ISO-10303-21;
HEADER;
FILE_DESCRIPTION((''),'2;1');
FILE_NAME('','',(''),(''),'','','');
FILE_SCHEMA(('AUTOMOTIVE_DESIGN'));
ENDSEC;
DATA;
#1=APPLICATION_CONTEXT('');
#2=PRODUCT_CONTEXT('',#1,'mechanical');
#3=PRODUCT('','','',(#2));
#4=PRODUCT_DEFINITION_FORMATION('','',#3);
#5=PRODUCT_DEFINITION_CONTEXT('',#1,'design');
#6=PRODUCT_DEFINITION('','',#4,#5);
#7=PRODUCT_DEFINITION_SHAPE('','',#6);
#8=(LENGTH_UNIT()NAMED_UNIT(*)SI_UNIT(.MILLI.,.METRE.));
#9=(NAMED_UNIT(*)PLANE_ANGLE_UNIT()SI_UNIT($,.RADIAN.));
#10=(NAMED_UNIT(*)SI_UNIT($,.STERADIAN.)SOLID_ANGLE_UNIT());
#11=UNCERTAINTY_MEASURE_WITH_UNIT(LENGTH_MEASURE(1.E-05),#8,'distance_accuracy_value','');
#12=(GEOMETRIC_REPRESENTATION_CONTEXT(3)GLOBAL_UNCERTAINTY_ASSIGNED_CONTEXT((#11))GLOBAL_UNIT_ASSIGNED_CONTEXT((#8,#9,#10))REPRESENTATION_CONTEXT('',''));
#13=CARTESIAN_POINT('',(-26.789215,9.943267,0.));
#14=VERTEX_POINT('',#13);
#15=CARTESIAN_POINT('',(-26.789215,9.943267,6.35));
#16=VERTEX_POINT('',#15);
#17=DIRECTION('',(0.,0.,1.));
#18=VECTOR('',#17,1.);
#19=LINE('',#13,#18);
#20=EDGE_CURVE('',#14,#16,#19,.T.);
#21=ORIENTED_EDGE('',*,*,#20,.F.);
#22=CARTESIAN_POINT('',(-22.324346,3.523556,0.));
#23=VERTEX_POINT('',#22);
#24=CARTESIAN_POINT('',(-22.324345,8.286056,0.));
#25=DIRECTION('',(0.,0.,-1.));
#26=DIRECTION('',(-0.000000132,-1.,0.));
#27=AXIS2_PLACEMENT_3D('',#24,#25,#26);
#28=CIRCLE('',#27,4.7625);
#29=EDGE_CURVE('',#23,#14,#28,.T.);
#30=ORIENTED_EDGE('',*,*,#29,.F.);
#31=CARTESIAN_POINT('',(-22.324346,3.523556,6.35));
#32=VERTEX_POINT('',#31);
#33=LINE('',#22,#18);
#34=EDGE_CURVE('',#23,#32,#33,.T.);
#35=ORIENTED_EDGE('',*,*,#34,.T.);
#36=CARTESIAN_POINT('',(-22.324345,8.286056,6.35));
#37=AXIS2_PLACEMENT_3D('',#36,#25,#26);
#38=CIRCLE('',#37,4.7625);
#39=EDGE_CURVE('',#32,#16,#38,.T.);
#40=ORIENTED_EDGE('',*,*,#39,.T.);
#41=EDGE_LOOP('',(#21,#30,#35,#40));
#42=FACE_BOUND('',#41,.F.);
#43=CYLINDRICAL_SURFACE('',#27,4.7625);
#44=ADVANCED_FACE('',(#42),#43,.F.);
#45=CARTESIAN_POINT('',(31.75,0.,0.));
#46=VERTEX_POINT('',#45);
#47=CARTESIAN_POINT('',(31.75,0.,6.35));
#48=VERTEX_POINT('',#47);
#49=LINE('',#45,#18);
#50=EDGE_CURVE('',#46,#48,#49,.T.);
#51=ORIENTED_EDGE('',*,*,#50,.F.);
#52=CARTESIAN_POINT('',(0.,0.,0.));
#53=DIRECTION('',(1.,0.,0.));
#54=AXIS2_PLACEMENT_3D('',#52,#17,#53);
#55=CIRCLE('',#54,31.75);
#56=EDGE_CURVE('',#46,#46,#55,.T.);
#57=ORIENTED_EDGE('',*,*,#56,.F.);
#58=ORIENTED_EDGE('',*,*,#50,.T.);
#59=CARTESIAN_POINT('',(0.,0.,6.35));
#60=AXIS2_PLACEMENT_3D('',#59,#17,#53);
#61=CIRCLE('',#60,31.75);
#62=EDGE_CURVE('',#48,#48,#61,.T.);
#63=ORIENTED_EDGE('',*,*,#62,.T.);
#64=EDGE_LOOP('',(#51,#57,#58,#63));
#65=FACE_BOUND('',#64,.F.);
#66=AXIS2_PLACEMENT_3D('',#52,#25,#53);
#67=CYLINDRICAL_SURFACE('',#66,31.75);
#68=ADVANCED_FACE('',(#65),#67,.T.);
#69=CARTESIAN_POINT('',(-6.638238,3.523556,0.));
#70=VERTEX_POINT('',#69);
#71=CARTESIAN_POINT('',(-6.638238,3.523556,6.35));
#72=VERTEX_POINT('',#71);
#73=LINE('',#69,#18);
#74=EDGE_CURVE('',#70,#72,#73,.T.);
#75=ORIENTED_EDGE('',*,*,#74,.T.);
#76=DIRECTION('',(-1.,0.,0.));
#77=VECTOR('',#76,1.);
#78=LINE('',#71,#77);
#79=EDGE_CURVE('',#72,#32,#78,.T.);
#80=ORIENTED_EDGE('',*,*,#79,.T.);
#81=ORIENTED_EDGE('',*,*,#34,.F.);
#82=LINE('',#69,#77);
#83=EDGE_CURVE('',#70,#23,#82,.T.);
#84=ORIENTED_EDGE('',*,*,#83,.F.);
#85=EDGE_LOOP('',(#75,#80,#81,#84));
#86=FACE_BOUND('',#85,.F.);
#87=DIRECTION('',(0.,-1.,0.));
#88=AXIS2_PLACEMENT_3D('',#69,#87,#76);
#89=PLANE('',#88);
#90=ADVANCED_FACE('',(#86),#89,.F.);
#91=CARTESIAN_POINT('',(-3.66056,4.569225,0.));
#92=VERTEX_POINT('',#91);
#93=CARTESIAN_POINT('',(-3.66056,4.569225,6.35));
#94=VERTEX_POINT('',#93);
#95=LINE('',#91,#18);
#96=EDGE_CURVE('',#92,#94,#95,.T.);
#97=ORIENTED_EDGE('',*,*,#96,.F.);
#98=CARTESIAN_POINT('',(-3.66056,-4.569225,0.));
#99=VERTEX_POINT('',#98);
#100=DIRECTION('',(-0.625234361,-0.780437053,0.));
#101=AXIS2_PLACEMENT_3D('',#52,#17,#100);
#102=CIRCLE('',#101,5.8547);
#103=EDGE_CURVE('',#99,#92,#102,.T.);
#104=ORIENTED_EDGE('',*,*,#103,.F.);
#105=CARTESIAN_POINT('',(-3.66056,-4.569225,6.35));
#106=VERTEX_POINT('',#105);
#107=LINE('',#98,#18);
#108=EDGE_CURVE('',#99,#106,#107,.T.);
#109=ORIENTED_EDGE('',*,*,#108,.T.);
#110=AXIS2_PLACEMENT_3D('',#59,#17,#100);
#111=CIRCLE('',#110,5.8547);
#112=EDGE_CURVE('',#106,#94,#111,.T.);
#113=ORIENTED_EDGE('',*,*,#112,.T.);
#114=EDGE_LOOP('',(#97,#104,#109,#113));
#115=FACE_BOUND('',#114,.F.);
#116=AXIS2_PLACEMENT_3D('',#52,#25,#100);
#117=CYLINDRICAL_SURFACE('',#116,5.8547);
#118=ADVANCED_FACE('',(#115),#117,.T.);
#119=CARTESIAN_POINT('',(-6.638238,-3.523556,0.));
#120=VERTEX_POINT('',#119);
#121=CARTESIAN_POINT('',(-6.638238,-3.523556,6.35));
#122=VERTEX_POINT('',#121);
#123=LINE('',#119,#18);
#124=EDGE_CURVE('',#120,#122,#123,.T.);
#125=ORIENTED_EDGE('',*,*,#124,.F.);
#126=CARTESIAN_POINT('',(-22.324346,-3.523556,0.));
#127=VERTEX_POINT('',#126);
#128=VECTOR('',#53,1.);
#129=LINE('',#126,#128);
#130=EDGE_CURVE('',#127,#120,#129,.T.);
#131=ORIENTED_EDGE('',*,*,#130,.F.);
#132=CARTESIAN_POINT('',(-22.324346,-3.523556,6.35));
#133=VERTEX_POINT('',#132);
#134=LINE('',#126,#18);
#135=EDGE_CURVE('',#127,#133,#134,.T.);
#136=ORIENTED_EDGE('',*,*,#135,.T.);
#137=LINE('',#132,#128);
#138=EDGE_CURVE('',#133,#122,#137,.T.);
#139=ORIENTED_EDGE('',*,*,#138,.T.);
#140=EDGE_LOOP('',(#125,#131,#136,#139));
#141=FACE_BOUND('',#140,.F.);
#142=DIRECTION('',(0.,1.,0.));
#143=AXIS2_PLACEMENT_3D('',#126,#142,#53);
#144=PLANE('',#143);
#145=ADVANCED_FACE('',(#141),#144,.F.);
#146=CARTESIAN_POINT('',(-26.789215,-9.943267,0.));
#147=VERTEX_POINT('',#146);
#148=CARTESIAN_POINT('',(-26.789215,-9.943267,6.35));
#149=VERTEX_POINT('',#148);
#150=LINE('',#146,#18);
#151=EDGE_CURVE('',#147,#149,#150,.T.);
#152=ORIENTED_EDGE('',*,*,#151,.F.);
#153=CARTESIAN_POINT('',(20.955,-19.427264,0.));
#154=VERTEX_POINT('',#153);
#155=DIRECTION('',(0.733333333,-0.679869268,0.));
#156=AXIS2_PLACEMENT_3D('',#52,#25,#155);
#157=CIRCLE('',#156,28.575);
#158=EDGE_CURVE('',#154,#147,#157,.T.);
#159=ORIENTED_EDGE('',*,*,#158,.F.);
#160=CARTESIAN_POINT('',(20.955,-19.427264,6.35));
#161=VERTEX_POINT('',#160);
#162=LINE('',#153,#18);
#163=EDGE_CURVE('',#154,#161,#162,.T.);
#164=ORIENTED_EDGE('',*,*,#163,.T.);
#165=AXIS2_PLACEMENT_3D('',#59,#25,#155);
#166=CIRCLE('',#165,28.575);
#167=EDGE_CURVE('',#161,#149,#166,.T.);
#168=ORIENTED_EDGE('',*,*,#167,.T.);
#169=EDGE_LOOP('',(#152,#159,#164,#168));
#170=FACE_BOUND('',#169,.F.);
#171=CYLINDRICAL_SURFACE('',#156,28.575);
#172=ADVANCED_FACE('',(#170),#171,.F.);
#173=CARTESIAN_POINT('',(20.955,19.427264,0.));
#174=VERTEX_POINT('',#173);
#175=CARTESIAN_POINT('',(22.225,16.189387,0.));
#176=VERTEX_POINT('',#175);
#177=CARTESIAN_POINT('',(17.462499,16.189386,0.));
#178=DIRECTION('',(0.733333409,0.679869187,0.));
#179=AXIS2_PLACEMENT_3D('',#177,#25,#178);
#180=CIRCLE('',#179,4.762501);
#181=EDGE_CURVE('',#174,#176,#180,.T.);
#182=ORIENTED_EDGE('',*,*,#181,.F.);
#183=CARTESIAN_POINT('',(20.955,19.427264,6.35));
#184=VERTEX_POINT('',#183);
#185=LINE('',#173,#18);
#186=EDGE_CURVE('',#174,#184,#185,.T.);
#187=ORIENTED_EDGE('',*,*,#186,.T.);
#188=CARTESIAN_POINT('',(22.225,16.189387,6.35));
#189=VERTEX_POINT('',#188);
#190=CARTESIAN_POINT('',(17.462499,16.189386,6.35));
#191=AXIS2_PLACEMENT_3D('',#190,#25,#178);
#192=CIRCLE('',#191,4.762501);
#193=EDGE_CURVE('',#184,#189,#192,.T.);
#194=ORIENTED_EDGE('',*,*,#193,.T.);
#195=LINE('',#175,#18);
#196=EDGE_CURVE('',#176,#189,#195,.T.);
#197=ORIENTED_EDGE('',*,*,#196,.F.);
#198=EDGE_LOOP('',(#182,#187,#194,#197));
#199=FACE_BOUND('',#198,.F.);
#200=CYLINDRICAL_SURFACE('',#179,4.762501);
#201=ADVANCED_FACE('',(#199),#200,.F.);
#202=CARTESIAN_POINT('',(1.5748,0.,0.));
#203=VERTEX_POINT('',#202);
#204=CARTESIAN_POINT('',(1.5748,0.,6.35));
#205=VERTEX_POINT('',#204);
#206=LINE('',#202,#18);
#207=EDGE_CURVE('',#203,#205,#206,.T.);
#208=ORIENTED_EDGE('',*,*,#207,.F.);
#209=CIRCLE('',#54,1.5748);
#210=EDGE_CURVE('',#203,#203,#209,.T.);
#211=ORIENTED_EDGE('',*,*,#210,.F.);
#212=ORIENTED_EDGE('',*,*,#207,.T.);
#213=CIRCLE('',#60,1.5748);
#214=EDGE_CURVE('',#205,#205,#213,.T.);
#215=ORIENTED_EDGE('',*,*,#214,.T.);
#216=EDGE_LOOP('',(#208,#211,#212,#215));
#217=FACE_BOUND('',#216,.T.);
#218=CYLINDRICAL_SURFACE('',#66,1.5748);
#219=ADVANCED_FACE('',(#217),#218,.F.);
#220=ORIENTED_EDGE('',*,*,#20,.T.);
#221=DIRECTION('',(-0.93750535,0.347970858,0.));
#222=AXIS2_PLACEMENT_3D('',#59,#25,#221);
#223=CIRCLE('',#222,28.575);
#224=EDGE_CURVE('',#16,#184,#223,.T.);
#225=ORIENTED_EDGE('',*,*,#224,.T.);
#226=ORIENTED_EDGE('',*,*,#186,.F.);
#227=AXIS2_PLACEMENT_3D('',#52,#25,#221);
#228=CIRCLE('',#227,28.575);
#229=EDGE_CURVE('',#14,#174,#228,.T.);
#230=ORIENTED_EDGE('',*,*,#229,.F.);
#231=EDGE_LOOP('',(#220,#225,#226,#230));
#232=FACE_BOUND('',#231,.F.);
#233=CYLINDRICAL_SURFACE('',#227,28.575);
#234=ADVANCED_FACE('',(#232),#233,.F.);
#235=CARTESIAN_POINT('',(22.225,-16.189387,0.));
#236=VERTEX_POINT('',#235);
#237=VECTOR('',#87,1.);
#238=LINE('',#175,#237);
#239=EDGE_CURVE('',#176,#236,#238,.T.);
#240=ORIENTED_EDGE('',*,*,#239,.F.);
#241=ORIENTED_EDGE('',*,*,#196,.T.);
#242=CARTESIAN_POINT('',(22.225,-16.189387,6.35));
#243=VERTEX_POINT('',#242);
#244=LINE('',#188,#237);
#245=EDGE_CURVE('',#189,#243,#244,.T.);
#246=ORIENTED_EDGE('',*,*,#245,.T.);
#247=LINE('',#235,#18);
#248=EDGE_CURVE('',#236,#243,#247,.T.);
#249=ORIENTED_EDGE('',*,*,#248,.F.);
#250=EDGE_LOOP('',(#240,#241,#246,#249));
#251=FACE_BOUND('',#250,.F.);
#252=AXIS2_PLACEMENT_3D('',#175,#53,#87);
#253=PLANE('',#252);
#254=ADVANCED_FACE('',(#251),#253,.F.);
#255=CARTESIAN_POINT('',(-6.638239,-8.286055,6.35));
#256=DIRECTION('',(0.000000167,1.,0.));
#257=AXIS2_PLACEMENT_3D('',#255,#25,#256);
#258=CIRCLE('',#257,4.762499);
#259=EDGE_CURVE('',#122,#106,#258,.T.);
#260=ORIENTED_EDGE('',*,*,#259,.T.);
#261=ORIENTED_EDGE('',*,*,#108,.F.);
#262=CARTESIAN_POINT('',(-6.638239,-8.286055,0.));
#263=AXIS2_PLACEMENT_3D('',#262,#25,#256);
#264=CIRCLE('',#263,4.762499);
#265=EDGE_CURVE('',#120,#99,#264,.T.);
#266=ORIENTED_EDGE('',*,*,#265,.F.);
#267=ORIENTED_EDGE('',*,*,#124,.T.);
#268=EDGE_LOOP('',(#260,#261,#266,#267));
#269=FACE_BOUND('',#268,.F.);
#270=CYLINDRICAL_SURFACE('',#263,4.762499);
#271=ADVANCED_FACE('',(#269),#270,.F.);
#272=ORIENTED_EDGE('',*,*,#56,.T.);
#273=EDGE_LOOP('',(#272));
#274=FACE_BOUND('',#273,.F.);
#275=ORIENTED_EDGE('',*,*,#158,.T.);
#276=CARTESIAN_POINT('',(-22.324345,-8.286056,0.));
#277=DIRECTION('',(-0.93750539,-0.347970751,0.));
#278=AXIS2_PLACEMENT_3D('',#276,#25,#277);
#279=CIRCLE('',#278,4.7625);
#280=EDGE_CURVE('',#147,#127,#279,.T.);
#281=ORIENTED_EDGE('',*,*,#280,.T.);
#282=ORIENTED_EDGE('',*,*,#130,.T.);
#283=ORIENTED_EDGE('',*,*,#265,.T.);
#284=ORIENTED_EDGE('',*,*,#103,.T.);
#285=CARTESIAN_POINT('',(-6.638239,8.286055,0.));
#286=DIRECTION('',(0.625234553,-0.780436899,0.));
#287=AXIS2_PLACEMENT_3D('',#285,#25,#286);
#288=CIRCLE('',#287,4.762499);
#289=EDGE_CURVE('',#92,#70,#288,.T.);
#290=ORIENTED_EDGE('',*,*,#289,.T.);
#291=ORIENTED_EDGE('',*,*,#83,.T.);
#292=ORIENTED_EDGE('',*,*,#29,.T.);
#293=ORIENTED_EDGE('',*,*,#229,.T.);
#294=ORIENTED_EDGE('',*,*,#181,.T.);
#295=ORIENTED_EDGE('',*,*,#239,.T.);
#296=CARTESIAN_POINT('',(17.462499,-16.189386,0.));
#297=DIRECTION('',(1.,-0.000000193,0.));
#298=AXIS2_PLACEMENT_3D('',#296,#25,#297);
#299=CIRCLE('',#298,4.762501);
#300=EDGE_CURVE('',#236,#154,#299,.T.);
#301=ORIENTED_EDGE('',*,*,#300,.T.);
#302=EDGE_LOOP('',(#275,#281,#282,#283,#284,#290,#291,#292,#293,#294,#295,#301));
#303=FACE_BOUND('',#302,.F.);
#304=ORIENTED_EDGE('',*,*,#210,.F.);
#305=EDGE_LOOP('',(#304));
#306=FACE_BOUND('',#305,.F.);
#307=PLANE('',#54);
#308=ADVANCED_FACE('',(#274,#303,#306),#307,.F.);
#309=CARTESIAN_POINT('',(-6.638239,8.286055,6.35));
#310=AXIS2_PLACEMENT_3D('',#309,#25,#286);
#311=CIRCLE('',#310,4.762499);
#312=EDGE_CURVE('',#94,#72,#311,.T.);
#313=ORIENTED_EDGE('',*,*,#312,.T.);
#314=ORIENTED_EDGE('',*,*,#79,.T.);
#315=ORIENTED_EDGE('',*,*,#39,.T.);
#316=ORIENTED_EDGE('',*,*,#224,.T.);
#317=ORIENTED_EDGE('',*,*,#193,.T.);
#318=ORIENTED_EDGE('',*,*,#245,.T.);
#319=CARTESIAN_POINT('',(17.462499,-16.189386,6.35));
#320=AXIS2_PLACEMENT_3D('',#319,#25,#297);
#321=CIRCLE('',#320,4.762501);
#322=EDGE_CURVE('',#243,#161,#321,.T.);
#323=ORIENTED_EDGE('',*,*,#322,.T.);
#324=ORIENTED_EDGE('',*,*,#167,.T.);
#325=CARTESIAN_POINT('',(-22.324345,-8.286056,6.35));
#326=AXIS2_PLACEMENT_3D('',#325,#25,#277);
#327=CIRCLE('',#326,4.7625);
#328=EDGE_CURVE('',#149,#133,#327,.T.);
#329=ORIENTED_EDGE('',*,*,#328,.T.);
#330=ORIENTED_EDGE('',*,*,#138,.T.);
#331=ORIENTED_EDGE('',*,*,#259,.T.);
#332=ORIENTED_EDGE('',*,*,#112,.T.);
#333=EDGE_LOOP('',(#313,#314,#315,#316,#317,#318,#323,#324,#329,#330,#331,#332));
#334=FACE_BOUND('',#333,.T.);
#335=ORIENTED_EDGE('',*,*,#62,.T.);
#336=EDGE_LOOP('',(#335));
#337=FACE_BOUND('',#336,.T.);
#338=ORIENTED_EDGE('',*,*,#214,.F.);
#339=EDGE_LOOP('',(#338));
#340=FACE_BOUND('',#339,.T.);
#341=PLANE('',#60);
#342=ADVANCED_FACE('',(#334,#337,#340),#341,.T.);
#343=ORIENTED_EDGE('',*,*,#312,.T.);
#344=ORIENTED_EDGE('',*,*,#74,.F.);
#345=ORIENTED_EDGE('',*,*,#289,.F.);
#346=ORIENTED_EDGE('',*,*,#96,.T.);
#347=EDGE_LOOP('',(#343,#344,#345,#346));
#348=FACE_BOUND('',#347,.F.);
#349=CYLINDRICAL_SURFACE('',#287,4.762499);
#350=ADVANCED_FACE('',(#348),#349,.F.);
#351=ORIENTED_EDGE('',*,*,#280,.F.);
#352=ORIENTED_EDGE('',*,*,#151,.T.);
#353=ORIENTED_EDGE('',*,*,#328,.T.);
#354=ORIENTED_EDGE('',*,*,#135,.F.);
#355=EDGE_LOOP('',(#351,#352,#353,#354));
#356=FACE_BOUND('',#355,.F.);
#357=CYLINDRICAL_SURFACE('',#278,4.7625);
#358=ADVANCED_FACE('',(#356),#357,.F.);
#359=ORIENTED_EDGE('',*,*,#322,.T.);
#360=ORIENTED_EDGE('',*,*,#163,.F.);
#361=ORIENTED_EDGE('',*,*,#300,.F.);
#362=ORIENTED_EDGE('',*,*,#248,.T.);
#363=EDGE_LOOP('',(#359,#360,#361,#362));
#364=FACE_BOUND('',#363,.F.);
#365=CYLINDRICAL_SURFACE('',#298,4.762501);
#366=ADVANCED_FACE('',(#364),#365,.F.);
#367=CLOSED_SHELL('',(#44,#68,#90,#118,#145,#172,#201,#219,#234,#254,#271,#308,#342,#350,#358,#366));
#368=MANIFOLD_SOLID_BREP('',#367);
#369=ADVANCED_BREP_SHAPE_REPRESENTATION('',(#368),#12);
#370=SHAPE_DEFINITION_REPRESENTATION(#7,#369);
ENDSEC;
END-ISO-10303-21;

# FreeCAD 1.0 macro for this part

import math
import FreeCAD as App
import Part
import Sketcher
from FreeCAD import Vector
Q = App.Units.Quantity

doc = App.newDocument("Part")
body = doc.addObject("PartDesign::Body", "Body")

# Sketch on XY plane
sketch1 = doc.addObject("Sketcher::SketchObject", "Sketch")
body.addObject(sketch1)
sketch1.AttachmentSupport = (doc.XY_Plane, [""])
sketch1.MapMode = "FlatFace"
sketch1.addGeometry(Part.Circle(Vector(0, 0, 0), Vector(0, 0, 1), 31.8), False)
sketch1.addGeometry(Part.ArcOfCircle(Part.Circle(Vector(17.5, -16.2, 0), Vector(0, 0, 1), 4.8), math.radians(-43), math.radians(0)), False)
sketch1.addGeometry(Part.ArcOfCircle(Part.Circle(Vector(0, 0, 0), Vector(0, 0, 1), 28.6), math.radians(-160), math.radians(-43)), False)
sketch1.addGeometry(Part.ArcOfCircle(Part.Circle(Vector(-22.3, -8.3, 0), Vector(0, 0, 1), 4.8), math.radians(90), math.radians(200)), False)
sketch1.addGeometry(Part.LineSegment(Vector(-22.3, -3.5, 0), Vector(-6.6, -3.5, 0)), False)
sketch1.addGeometry(Part.ArcOfCircle(Part.Circle(Vector(-6.6, -8.3, 0), Vector(0, 0, 1), 4.8), math.radians(51), math.radians(90)), False)
sketch1.addGeometry(Part.ArcOfCircle(Part.Circle(Vector(0, 0, 0), Vector(0, 0, 1), 5.9), math.radians(-129), math.radians(129)), False)
sketch1.addGeometry(Part.ArcOfCircle(Part.Circle(Vector(-6.6, 8.3, 0), Vector(0, 0, 1), 4.8), math.radians(-90), math.radians(-51)), False)
sketch1.addGeometry(Part.LineSegment(Vector(-6.6, 3.5, 0), Vector(-22.3, 3.5, 0)), False)
sketch1.addGeometry(Part.ArcOfCircle(Part.Circle(Vector(-22.3, 8.3, 0), Vector(0, 0, 1), 4.8), math.radians(160), math.radians(270)), False)
sketch1.addGeometry(Part.ArcOfCircle(Part.Circle(Vector(0, 0, 0), Vector(0, 0, 1), 28.6), math.radians(43), math.radians(160)), False)
sketch1.addGeometry(Part.ArcOfCircle(Part.Circle(Vector(17.5, 16.2, 0), Vector(0, 0, 1), 4.8), math.radians(0), math.radians(43)), False)
sketch1.addGeometry(Part.LineSegment(Vector(22.2, 16.2, 0), Vector(22.2, -16.2, 0)), False)
sketch1.addGeometry(Part.Circle(Vector(0, 0, 0), Vector(0, 0, 1), 1.6), False)
sketch1.addConstraint(Sketcher.Constraint("Tangent", 1, 1, 2, 2))
sketch1.addConstraint(Sketcher.Constraint("Tangent", 2, 1, 3, 2))
sketch1.addConstraint(Sketcher.Constraint("Tangent", 3, 1, 4, 1))
sketch1.addConstraint(Sketcher.Constraint("Tangent", 4, 2, 5, 2))
sketch1.addConstraint(Sketcher.Constraint("Tangent", 5, 1, 6, 1))
sketch1.addConstraint(Sketcher.Constraint("Tangent", 6, 2, 7, 2))
sketch1.addConstraint(Sketcher.Constraint("Tangent", 7, 1, 8, 1))
sketch1.addConstraint(Sketcher.Constraint("Tangent", 8, 2, 9, 2))
sketch1.addConstraint(Sketcher.Constraint("Tangent", 9, 1, 10, 2))
sketch1.addConstraint(Sketcher.Constraint("Tangent", 10, 1, 11, 2))
sketch1.addConstraint(Sketcher.Constraint("Tangent", 11, 1, 12, 1))
sketch1.addConstraint(Sketcher.Constraint("Tangent", 12, 2, 1, 2))
sketch1.addConstraint(Sketcher.Constraint("Horizontal", 4))
sketch1.addConstraint(Sketcher.Constraint("Horizontal", 8))
sketch1.addConstraint(Sketcher.Constraint("Vertical", 12))
sketch1.addConstraint(Sketcher.Constraint("Coincident", 0, 3, -1, 1))
sketch1.addConstraint(Sketcher.Constraint("Coincident", 2, 3, -1, 1))
sketch1.addConstraint(Sketcher.Constraint("Coincident", 6, 3, -1, 1))
sketch1.addConstraint(Sketcher.Constraint("Coincident", 10, 3, -1, 1))
sketch1.addConstraint(Sketcher.Constraint("Coincident", 13, 3, -1, 1))
sketch1.addConstraint(Sketcher.Constraint("Equal", 1, 3))
sketch1.addConstraint(Sketcher.Constraint("Equal", 3, 5))
sketch1.addConstraint(Sketcher.Constraint("Equal", 5, 7))
sketch1.addConstraint(Sketcher.Constraint("Equal", 7, 9))
sketch1.addConstraint(Sketcher.Constraint("Equal", 2, 10))
sketch1.addConstraint(Sketcher.Constraint("Equal", 9, 11))
sketch1.addConstraint(Sketcher.Constraint("Vertical", 5, 3, 7, 3))
sketch1.addConstraint(Sketcher.Constraint("Diameter", 0, Q("2.5 in")))
sketch1.addConstraint(Sketcher.Constraint("Diameter", 13, Q("0.124 in")))
sketch1.addConstraint(Sketcher.Constraint("Radius", 1, Q("0.1875001 in")))
sketch1.addConstraint(Sketcher.Constraint("Radius", 2, Q("1.125 in")))
sketch1.addConstraint(Sketcher.Constraint("Radius", 6, Q("0.2305 in")))
sketch1.addConstraint(Sketcher.Constraint("DistanceX", 10, 1, 11, 1, Q("0.05 in")))
sketch1.addConstraint(Sketcher.Constraint("DistanceX", 4, 1, 4, 2, 15.686108))
pad1 = doc.addObject("PartDesign::Pad", "Pad")
body.addObject(pad1)
pad1.Profile = sketch1
pad1.Length = Q("0.25 in")

doc.recompute()
